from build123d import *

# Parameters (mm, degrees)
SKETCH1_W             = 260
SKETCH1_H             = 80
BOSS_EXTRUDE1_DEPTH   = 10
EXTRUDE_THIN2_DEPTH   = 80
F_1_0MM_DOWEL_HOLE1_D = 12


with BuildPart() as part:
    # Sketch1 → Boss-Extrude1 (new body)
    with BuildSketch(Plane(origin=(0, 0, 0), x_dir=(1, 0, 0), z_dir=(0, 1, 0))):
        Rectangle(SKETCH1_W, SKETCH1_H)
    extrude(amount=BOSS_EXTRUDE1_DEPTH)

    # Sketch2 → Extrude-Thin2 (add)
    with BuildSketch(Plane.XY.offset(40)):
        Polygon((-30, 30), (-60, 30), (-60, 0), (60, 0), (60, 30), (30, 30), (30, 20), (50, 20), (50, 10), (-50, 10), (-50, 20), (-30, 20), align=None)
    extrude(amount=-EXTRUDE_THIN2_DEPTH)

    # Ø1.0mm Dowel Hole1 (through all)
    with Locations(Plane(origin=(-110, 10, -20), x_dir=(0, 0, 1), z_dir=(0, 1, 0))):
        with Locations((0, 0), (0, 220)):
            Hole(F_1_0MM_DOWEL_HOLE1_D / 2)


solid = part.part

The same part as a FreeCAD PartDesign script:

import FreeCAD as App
import Part
import Sketcher
from FreeCAD import Vector

doc = App.newDocument("Part")
body = doc.addObject("PartDesign::Body", "Body")

# Sketch on XZ plane
sketch1 = doc.addObject("Sketcher::SketchObject", "Sketch")
body.addObject(sketch1)
sketch1.AttachmentSupport = (doc.XZ_Plane, [""])
sketch1.MapMode = "FlatFace"
sketch1.addGeometry([
    Part.LineSegment(Vector(-130, -40, 0), Vector(-130, 40, 0)),
    Part.LineSegment(Vector(-130, 40, 0), Vector(130, 40, 0)),
    Part.LineSegment(Vector(130, 40, 0), Vector(130, -40, 0)),
    Part.LineSegment(Vector(130, -40, 0), Vector(-130, -40, 0)),
], False)
sketch1.addConstraint([
    Sketcher.Constraint("Coincident", 0, 2, 1, 1),
    Sketcher.Constraint("Coincident", 1, 2, 2, 1),
    Sketcher.Constraint("Coincident", 2, 2, 3, 1),
    Sketcher.Constraint("Coincident", 3, 2, 0, 1),
    Sketcher.Constraint("Vertical", 0),
    Sketcher.Constraint("Horizontal", 1),
    Sketcher.Constraint("Vertical", 2),
    Sketcher.Constraint("Horizontal", 3),
    Sketcher.Constraint("Symmetric", 0, 2, 2, 2, -1, 1),
    Sketcher.Constraint("DistanceX", 1, 1, 1, 2, 260.0),
    Sketcher.Constraint("DistanceY", 0, 1, 0, 2, 80.0),
])
pad1 = doc.addObject("PartDesign::Pad", "Pad")
body.addObject(pad1)
pad1.Profile = sketch1
pad1.Length = 10
pad1.Reversed = True

# Sketch on XY plane
sketch2 = doc.addObject("Sketcher::SketchObject", "Sketch001")
body.addObject(sketch2)
sketch2.AttachmentSupport = (doc.XY_Plane, [""])
sketch2.MapMode = "FlatFace"
sketch2.AttachmentOffset = App.Placement(Vector(0, 0, 40), App.Rotation())
sketch2.addGeometry([
    Part.LineSegment(Vector(-30, 30, 0), Vector(-60, 30, 0)),  # 0
    Part.LineSegment(Vector(-60, 30, 0), Vector(-60, 0, 0)),  # 1
    Part.LineSegment(Vector(-60, 0, 0), Vector(60, 0, 0)),  # 2
    Part.LineSegment(Vector(60, 0, 0), Vector(60, 30, 0)),  # 3
    Part.LineSegment(Vector(60, 30, 0), Vector(30, 30, 0)),  # 4
    Part.LineSegment(Vector(30, 30, 0), Vector(30, 20, 0)),  # 5
    Part.LineSegment(Vector(30, 20, 0), Vector(50, 20, 0)),  # 6
    Part.LineSegment(Vector(50, 20, 0), Vector(50, 10, 0)),  # 7
    Part.LineSegment(Vector(50, 10, 0), Vector(-50, 10, 0)),  # 8
    Part.LineSegment(Vector(-50, 10, 0), Vector(-50, 20, 0)),  # 9
    Part.LineSegment(Vector(-50, 20, 0), Vector(-30, 20, 0)),  # 10
    Part.LineSegment(Vector(-30, 20, 0), Vector(-30, 30, 0)),  # 11
], False)
sketch2.addConstraint([
    Sketcher.Constraint("Coincident", 0, 2, 1, 1),
    Sketcher.Constraint("Coincident", 1, 2, 2, 1),
    Sketcher.Constraint("Coincident", 2, 2, 3, 1),
    Sketcher.Constraint("Coincident", 3, 2, 4, 1),
    Sketcher.Constraint("Coincident", 4, 2, 5, 1),
    Sketcher.Constraint("Coincident", 5, 2, 6, 1),
    Sketcher.Constraint("Coincident", 6, 2, 7, 1),
    Sketcher.Constraint("Coincident", 7, 2, 8, 1),
    Sketcher.Constraint("Coincident", 8, 2, 9, 1),
    Sketcher.Constraint("Coincident", 9, 2, 10, 1),
    Sketcher.Constraint("Coincident", 10, 2, 11, 1),
    Sketcher.Constraint("Coincident", 11, 2, 0, 1),
    Sketcher.Constraint("Horizontal", 0),
    Sketcher.Constraint("Vertical", 1),
    Sketcher.Constraint("Horizontal", 2),
    Sketcher.Constraint("Vertical", 3),
    Sketcher.Constraint("Horizontal", 4),
    Sketcher.Constraint("Vertical", 5),
    Sketcher.Constraint("Horizontal", 6),
    Sketcher.Constraint("Vertical", 7),
    Sketcher.Constraint("Horizontal", 8),
    Sketcher.Constraint("Vertical", 9),
    Sketcher.Constraint("Horizontal", 10),
    Sketcher.Constraint("Vertical", 11),
    Sketcher.Constraint("Symmetric", 1, 2, 2, 2, -1, 1),
    Sketcher.Constraint("Symmetric", 6, 2, 9, 2, -2),
    Sketcher.Constraint("Symmetric", 4, 2, 11, 2, -2),
    Sketcher.Constraint("Equal", 4, 1),
    Sketcher.Constraint("Equal", 5, 7),
    Sketcher.Constraint("DistanceX", 0, 2, 0, 1, 30.0),
    Sketcher.Constraint("DistanceX", 2, 1, 2, 2, 120.0),
    Sketcher.Constraint("DistanceX", 6, 1, 6, 2, 20.0),
    Sketcher.Constraint("DistanceY", 5, 2, 5, 1, 10.0),
])
pad2 = doc.addObject("PartDesign::Pad", "Pad001")
body.addObject(pad2)
pad2.Profile = sketch2
pad2.Length = 80
pad2.Reversed = True

# Sketch on XZ plane
sketch3 = doc.addObject("Sketcher::SketchObject", "Sketch002")
body.addObject(sketch3)
sketch3.AttachmentSupport = (doc.XZ_Plane, [""])
sketch3.MapMode = "FlatFace"
sketch3.AttachmentOffset = App.Placement(Vector(0, 0, -10), App.Rotation())
sketch3.addGeometry([
    Part.Circle(Vector(-110, -20, 0), Vector(0, 0, 1), 6),
    Part.Circle(Vector(110, -20, 0), Vector(0, 0, 1), 6),
], False)
sketch3.addConstraint([
    Sketcher.Constraint("Equal", 0, 1),
    Sketcher.Constraint("Symmetric", 0, 3, 1, 3, -2),
    Sketcher.Constraint("Diameter", 0, 12.0),
    Sketcher.Constraint("DistanceX", 0, 3, -1, 1, 110.0),
    Sketcher.Constraint("DistanceY", 0, 3, -1, 1, 20.0),
])
doc.recompute()
hole = doc.addObject("PartDesign::Hole", "Hole")
body.addObject(hole)
hole.Profile = sketch3
hole.ThreadType = "None"
hole.Diameter = 12
hole.DepthType = "ThroughAll"
hole.Reversed = True

doc.recompute()
